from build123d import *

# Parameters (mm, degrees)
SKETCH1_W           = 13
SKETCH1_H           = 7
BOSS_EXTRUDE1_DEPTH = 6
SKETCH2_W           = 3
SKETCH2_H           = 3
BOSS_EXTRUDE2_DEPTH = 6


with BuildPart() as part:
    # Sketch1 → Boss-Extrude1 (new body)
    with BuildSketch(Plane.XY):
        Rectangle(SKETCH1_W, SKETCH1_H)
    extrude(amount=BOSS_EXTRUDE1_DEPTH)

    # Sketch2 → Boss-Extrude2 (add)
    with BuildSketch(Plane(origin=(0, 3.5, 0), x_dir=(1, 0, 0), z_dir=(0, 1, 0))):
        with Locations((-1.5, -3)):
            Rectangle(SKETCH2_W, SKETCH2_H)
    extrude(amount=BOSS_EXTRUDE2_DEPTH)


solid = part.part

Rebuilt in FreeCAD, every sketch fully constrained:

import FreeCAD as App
import Part
import Sketcher
from FreeCAD import Vector
Q = App.Units.Quantity


def add_polygon(sketch, points):
    """Adds a closed chain of lines whose ends are joined by coincident constraints."""
    first, n = sketch.GeometryCount, len(points)
    for a, b in zip(points, points[1:] + points[:1]):
        sketch.addGeometry(Part.LineSegment(App.Vector(*a, 0), App.Vector(*b, 0)), False)
    for i in range(n):
        sketch.addConstraint(Sketcher.Constraint("Coincident", first + i, 2, first + (i + 1) % n, 1))

doc = App.newDocument("Part")
body = doc.addObject("PartDesign::Body", "Body")

# Sketch on XY plane
sketch1 = body.newObject("Sketcher::SketchObject", "Sketch")
sketch1.AttachmentSupport = (doc.getObject("XY_Plane"), [""])
sketch1.MapMode = "FlatFace"
add_polygon(sketch1, [(-6, 4), (-6, -4), (6, -4), (6, 4)])  # lines 0-3
sketch1.addConstraint([
    Sketcher.Constraint("Vertical", 0),
    Sketcher.Constraint("Horizontal", 1),
    Sketcher.Constraint("Vertical", 2),
    Sketcher.Constraint("Horizontal", 3),
    Sketcher.Constraint("Symmetric", 0, 2, 2, 2, -1, 1),
    Sketcher.Constraint("DistanceX", 1, 1, 1, 2, Q("13 mm")),
    Sketcher.Constraint("DistanceY", 0, 2, 0, 1, Q("7 mm")),
])
pad1 = body.newObject("PartDesign::Pad", "Pad")
pad1.Profile = sketch1
pad1.Length = 6

# Sketch on XZ plane
sketch2 = body.newObject("Sketcher::SketchObject", "Sketch001")
sketch2.AttachmentSupport = (doc.getObject("XZ_Plane"), [""])
sketch2.MapMode = "FlatFace"
sketch2.AttachmentOffset = App.Placement(Vector(0, 0, -3.5), App.Rotation())
add_polygon(sketch2, [(-3, 1.5), (-3, 4.5), (0, 4.5), (0, 1.5)])  # lines 0-3
sketch2.addConstraint([
    Sketcher.Constraint("Vertical", 0),
    Sketcher.Constraint("Horizontal", 1),
    Sketcher.Constraint("Vertical", 2),
    Sketcher.Constraint("Horizontal", 3),
    Sketcher.Constraint("PointOnObject", 1, 2, -2),
    Sketcher.Constraint("Equal", 3, 0),
    Sketcher.Constraint("DistanceX", 1, 1, 1, 2, Q("3 mm")),
    Sketcher.Constraint("DistanceY", -1, 1, 0, 2, Q("4.5 mm")),
])
pad2 = body.newObject("PartDesign::Pad", "Pad001")
pad2.Profile = sketch2
pad2.Length = 6
pad2.Reversed = True

doc.recompute()
